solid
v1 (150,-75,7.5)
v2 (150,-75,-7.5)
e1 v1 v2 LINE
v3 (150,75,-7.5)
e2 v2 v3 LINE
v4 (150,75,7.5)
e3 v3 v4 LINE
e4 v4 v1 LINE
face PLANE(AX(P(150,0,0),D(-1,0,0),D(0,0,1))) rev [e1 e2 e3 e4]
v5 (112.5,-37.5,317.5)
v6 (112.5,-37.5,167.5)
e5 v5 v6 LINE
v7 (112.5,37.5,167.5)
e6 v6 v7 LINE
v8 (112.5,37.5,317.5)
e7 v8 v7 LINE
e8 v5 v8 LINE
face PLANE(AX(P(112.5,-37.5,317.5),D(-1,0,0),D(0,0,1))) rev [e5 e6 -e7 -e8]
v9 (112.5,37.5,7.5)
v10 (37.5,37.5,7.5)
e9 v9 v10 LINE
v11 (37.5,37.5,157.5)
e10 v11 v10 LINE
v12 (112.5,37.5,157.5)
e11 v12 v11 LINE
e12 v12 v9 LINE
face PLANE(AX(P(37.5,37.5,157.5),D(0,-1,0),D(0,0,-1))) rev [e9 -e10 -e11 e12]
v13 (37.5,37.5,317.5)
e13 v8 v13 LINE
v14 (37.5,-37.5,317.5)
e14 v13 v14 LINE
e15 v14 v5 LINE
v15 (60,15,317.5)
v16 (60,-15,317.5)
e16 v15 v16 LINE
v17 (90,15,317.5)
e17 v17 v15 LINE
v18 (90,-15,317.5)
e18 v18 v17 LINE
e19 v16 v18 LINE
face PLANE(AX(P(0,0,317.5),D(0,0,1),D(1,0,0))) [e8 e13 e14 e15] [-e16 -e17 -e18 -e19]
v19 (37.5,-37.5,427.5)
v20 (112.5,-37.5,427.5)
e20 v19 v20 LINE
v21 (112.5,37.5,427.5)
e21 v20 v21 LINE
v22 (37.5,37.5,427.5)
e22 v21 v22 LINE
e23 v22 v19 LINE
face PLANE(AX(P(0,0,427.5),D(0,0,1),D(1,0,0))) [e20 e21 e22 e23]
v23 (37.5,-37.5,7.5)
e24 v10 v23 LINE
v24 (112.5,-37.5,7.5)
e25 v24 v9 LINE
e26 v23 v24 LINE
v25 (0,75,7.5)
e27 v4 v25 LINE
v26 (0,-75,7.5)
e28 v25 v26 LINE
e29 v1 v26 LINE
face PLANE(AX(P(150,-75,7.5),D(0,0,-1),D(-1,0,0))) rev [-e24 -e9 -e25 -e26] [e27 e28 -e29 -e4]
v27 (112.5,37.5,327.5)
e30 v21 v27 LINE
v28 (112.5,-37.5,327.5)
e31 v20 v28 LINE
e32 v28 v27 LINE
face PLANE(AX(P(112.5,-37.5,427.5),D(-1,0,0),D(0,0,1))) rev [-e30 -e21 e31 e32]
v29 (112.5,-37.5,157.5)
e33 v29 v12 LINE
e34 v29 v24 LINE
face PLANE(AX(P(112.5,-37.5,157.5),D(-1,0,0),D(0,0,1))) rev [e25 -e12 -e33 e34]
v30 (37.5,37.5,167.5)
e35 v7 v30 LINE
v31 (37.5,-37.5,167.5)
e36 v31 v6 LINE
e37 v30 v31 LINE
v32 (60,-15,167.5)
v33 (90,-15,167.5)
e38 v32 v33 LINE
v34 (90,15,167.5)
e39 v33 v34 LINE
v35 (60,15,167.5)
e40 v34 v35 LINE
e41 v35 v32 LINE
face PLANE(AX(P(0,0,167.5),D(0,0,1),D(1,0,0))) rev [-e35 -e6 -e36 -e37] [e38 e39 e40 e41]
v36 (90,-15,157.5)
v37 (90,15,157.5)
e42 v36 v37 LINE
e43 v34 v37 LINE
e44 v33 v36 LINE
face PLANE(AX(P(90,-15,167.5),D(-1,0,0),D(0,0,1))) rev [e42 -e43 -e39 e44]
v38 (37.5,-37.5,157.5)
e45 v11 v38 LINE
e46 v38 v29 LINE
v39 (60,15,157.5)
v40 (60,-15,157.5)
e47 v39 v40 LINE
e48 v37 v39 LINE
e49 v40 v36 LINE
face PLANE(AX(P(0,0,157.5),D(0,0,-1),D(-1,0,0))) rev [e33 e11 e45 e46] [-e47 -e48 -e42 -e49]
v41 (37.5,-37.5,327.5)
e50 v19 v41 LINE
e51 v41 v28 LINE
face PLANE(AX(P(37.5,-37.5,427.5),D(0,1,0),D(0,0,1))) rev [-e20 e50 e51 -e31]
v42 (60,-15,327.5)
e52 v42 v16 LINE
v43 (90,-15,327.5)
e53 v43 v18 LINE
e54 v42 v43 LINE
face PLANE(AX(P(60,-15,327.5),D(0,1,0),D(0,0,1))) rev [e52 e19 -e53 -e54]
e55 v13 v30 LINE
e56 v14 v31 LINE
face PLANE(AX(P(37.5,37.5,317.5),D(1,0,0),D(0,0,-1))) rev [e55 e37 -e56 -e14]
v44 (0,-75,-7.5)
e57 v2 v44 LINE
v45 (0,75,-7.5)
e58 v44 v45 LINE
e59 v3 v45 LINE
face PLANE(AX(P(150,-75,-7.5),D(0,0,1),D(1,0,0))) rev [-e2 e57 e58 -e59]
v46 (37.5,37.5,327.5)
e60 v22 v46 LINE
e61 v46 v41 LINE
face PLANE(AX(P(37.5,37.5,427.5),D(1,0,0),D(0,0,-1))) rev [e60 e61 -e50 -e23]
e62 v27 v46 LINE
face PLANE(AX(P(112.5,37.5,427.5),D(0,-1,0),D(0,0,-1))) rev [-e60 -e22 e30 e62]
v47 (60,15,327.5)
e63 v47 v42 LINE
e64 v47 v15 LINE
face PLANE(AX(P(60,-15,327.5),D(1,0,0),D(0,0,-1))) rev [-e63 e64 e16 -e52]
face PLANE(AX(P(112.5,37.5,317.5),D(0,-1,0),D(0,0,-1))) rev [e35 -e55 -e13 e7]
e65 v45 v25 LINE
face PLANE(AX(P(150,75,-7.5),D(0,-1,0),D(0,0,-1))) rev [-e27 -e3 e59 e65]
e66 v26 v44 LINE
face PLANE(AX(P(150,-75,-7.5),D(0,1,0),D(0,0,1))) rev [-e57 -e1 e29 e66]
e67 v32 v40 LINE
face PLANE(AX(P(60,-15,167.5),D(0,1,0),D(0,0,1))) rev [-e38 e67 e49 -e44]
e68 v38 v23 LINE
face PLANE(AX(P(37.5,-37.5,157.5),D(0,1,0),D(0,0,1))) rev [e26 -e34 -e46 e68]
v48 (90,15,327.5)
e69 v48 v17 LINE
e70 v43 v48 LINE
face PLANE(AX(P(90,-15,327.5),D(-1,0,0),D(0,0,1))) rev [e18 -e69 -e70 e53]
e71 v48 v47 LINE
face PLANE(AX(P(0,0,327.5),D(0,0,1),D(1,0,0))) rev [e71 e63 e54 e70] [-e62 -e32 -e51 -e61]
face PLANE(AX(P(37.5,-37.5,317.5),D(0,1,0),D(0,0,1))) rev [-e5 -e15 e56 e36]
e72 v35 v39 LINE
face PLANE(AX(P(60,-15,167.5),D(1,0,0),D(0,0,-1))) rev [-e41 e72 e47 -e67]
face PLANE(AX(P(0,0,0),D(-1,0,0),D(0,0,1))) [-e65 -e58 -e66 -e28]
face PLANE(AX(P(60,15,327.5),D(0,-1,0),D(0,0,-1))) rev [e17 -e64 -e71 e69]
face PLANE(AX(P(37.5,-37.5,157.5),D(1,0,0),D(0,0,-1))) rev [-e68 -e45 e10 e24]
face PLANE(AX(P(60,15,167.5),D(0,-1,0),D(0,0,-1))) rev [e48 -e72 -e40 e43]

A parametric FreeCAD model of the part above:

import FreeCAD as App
import Part
import Sketcher

doc = App.newDocument("Part")
body = doc.addObject("PartDesign::Body", "Body")

# Sketch on YZ plane
sketch1 = doc.addObject("Sketcher::SketchObject", "Sketch")
body.addObject(sketch1)
sketch1.AttachmentSupport = (doc.YZ_Plane, [""])
sketch1.MapMode = "FlatFace"
sketch1.addGeometry(Part.LineSegment(App.Vector(-75, 8, 0), App.Vector(-75, -8, 0)), False)
sketch1.addGeometry(Part.LineSegment(App.Vector(-75, -8, 0), App.Vector(75, -8, 0)), False)
sketch1.addGeometry(Part.LineSegment(App.Vector(75, -8, 0), App.Vector(75, 8, 0)), False)
sketch1.addGeometry(Part.LineSegment(App.Vector(75, 8, 0), App.Vector(-75, 8, 0)), False)
sketch1.addConstraint(Sketcher.Constraint("Coincident", 0, 2, 1, 1))
sketch1.addConstraint(Sketcher.Constraint("Coincident", 1, 2, 2, 1))
sketch1.addConstraint(Sketcher.Constraint("Coincident", 2, 2, 3, 1))
sketch1.addConstraint(Sketcher.Constraint("Coincident", 3, 2, 0, 1))
sketch1.addConstraint(Sketcher.Constraint("Vertical", 0))
sketch1.addConstraint(Sketcher.Constraint("Horizontal", 1))
sketch1.addConstraint(Sketcher.Constraint("Vertical", 2))
sketch1.addConstraint(Sketcher.Constraint("Horizontal", 3))
sketch1.addConstraint(Sketcher.Constraint("Symmetric", 0, 2, 2, 2, -1, 1))
sketch1.addConstraint(Sketcher.Constraint("DistanceX", 1, 1, 1, 2, 150.0))
sketch1.addConstraint(Sketcher.Constraint("DistanceY", 0, 2, 0, 1, 15.0))
pad1 = doc.addObject("PartDesign::Pad", "Pad")
body.addObject(pad1)
pad1.Profile = sketch1
pad1.Length = 150

# Sketch on XY plane
sketch2 = doc.addObject("Sketcher::SketchObject", "Sketch001")
body.addObject(sketch2)
sketch2.AttachmentSupport = (doc.XY_Plane, [""])
sketch2.MapMode = "FlatFace"
sketch2.AttachmentOffset = App.Placement(App.Vector(0, 0, 7.5), App.Rotation())
sketch2.addGeometry(Part.LineSegment(App.Vector(38, 38, 0), App.Vector(38, -38, 0)), False)
sketch2.addGeometry(Part.LineSegment(App.Vector(38, -38, 0), App.Vector(112, -38, 0)), False)
sketch2.addGeometry(Part.LineSegment(App.Vector(112, -38, 0), App.Vector(112, 38, 0)), False)
sketch2.addGeometry(Part.LineSegment(App.Vector(112, 38, 0), App.Vector(38, 38, 0)), False)
sketch2.addConstraint(Sketcher.Constraint("Coincident", 0, 2, 1, 1))
sketch2.addConstraint(Sketcher.Constraint("Coincident", 1, 2, 2, 1))
sketch2.addConstraint(Sketcher.Constraint("Coincident", 2, 2, 3, 1))
sketch2.addConstraint(Sketcher.Constraint("Coincident", 3, 2, 0, 1))
sketch2.addConstraint(Sketcher.Constraint("Vertical", 0))
sketch2.addConstraint(Sketcher.Constraint("Horizontal", 1))
sketch2.addConstraint(Sketcher.Constraint("Vertical", 2))
sketch2.addConstraint(Sketcher.Constraint("Horizontal", 3))
sketch2.addConstraint(Sketcher.Constraint("Equal", 3, 0))
sketch2.addConstraint(Sketcher.Constraint("DistanceX", 1, 1, 1, 2, 75.0))
sketch2.addConstraint(Sketcher.Constraint("DistanceX", -1, 1, 0, 2, 37.5))
sketch2.addConstraint(Sketcher.Constraint("DistanceY", 0, 2, -1, 1, 37.5))
pad2 = doc.addObject("PartDesign::Pad", "Pad001")
body.addObject(pad2)
pad2.Profile = sketch2
pad2.Length = 150

# Sketch on XY plane
sketch3 = doc.addObject("Sketcher::SketchObject", "Sketch002")
body.addObject(sketch3)
sketch3.AttachmentSupport = (doc.XY_Plane, [""])
sketch3.MapMode = "FlatFace"
sketch3.AttachmentOffset = App.Placement(App.Vector(0, 0, 157.5), App.Rotation())
sketch3.addGeometry(Part.LineSegment(App.Vector(60, 15, 0), App.Vector(60, -15, 0)), False)
sketch3.addGeometry(Part.LineSegment(App.Vector(60, -15, 0), App.Vector(90, -15, 0)), False)
sketch3.addGeometry(Part.LineSegment(App.Vector(90, -15, 0), App.Vector(90, 15, 0)), False)
sketch3.addGeometry(Part.LineSegment(App.Vector(90, 15, 0), App.Vector(60, 15, 0)), False)
sketch3.addConstraint(Sketcher.Constraint("Coincident", 0, 2, 1, 1))
sketch3.addConstraint(Sketcher.Constraint("Coincident", 1, 2, 2, 1))
sketch3.addConstraint(Sketcher.Constraint("Coincident", 2, 2, 3, 1))
sketch3.addConstraint(Sketcher.Constraint("Coincident", 3, 2, 0, 1))
sketch3.addConstraint(Sketcher.Constraint("Vertical", 0))
sketch3.addConstraint(Sketcher.Constraint("Horizontal", 1))
sketch3.addConstraint(Sketcher.Constraint("Vertical", 2))
sketch3.addConstraint(Sketcher.Constraint("Horizontal", 3))
sketch3.addConstraint(Sketcher.Constraint("Equal", 3, 0))
sketch3.addConstraint(Sketcher.Constraint("DistanceX", 1, 1, 1, 2, 30.0))
sketch3.addConstraint(Sketcher.Constraint("DistanceX", -1, 1, 0, 2, 60.0))
sketch3.addConstraint(Sketcher.Constraint("DistanceY", 0, 2, -1, 1, 15.0))
pad3 = doc.addObject("PartDesign::Pad", "Pad002")
body.addObject(pad3)
pad3.Profile = sketch3
pad3.Length = 10

# Sketch on XY plane
sketch4 = doc.addObject("Sketcher::SketchObject", "Sketch003")
body.addObject(sketch4)
sketch4.AttachmentSupport = (doc.XY_Plane, [""])
sketch4.MapMode = "FlatFace"
sketch4.AttachmentOffset = App.Placement(App.Vector(0, 0, 167.5), App.Rotation())
sketch4.addGeometry(Part.LineSegment(App.Vector(38, 38, 0), App.Vector(38, -38, 0)), False)
sketch4.addGeometry(Part.LineSegment(App.Vector(38, -38, 0), App.Vector(112, -38, 0)), False)
sketch4.addGeometry(Part.LineSegment(App.Vector(112, -38, 0), App.Vector(112, 38, 0)), False)
sketch4.addGeometry(Part.LineSegment(App.Vector(112, 38, 0), App.Vector(38, 38, 0)), False)
sketch4.addConstraint(Sketcher.Constraint("Coincident", 0, 2, 1, 1))
sketch4.addConstraint(Sketcher.Constraint("Coincident", 1, 2, 2, 1))
sketch4.addConstraint(Sketcher.Constraint("Coincident", 2, 2, 3, 1))
sketch4.addConstraint(Sketcher.Constraint("Coincident", 3, 2, 0, 1))
sketch4.addConstraint(Sketcher.Constraint("Vertical", 0))
sketch4.addConstraint(Sketcher.Constraint("Horizontal", 1))
sketch4.addConstraint(Sketcher.Constraint("Vertical", 2))
sketch4.addConstraint(Sketcher.Constraint("Horizontal", 3))
sketch4.addConstraint(Sketcher.Constraint("Equal", 3, 0))
sketch4.addConstraint(Sketcher.Constraint("DistanceX", 1, 1, 1, 2, 75.0))
sketch4.addConstraint(Sketcher.Constraint("DistanceX", -1, 1, 0, 2, 37.5))
sketch4.addConstraint(Sketcher.Constraint("DistanceY", 0, 2, -1, 1, 37.5))
pad4 = doc.addObject("PartDesign::Pad", "Pad003")
body.addObject(pad4)
pad4.Profile = sketch4
pad4.Length = 150
doc.recompute()

linearpattern = doc.addObject("PartDesign::LinearPattern", "LinearPattern")
body.addObject(linearpattern)
linearpattern.Originals = [pad3]
linearpattern.Direction = (doc.Z_Axis, [""])
linearpattern.Mode = "offset"
linearpattern.Offset = 160
linearpattern.Occurrences = 2
body.Tip = linearpattern

# Sketch on XY plane
sketch5 = doc.addObject("Sketcher::SketchObject", "Sketch004")
body.addObject(sketch5)
sketch5.AttachmentSupport = (doc.XY_Plane, [""])
sketch5.MapMode = "FlatFace"
sketch5.AttachmentOffset = App.Placement(App.Vector(0, 0, 327.5), App.Rotation())
sketch5.addGeometry(Part.LineSegment(App.Vector(38, 38, 0), App.Vector(38, -38, 0)), False)
sketch5.addGeometry(Part.LineSegment(App.Vector(38, -38, 0), App.Vector(112, -38, 0)), False)
sketch5.addGeometry(Part.LineSegment(App.Vector(112, -38, 0), App.Vector(112, 38, 0)), False)
sketch5.addGeometry(Part.LineSegment(App.Vector(112, 38, 0), App.Vector(38, 38, 0)), False)
sketch5.addConstraint(Sketcher.Constraint("Coincident", 0, 2, 1, 1))
sketch5.addConstraint(Sketcher.Constraint("Coincident", 1, 2, 2, 1))
sketch5.addConstraint(Sketcher.Constraint("Coincident", 2, 2, 3, 1))
sketch5.addConstraint(Sketcher.Constraint("Coincident", 3, 2, 0, 1))
sketch5.addConstraint(Sketcher.Constraint("Vertical", 0))
sketch5.addConstraint(Sketcher.Constraint("Horizontal", 1))
sketch5.addConstraint(Sketcher.Constraint("Vertical", 2))
sketch5.addConstraint(Sketcher.Constraint("Horizontal", 3))
sketch5.addConstraint(Sketcher.Constraint("Equal", 3, 0))
sketch5.addConstraint(Sketcher.Constraint("DistanceX", 1, 1, 1, 2, 75.0))
sketch5.addConstraint(Sketcher.Constraint("DistanceX", -1, 1, 0, 2, 37.5))
sketch5.addConstraint(Sketcher.Constraint("DistanceY", 0, 2, -1, 1, 37.5))
pad5 = doc.addObject("PartDesign::Pad", "Pad004")
body.addObject(pad5)
pad5.Profile = sketch5
pad5.Length = 100

doc.recompute()
